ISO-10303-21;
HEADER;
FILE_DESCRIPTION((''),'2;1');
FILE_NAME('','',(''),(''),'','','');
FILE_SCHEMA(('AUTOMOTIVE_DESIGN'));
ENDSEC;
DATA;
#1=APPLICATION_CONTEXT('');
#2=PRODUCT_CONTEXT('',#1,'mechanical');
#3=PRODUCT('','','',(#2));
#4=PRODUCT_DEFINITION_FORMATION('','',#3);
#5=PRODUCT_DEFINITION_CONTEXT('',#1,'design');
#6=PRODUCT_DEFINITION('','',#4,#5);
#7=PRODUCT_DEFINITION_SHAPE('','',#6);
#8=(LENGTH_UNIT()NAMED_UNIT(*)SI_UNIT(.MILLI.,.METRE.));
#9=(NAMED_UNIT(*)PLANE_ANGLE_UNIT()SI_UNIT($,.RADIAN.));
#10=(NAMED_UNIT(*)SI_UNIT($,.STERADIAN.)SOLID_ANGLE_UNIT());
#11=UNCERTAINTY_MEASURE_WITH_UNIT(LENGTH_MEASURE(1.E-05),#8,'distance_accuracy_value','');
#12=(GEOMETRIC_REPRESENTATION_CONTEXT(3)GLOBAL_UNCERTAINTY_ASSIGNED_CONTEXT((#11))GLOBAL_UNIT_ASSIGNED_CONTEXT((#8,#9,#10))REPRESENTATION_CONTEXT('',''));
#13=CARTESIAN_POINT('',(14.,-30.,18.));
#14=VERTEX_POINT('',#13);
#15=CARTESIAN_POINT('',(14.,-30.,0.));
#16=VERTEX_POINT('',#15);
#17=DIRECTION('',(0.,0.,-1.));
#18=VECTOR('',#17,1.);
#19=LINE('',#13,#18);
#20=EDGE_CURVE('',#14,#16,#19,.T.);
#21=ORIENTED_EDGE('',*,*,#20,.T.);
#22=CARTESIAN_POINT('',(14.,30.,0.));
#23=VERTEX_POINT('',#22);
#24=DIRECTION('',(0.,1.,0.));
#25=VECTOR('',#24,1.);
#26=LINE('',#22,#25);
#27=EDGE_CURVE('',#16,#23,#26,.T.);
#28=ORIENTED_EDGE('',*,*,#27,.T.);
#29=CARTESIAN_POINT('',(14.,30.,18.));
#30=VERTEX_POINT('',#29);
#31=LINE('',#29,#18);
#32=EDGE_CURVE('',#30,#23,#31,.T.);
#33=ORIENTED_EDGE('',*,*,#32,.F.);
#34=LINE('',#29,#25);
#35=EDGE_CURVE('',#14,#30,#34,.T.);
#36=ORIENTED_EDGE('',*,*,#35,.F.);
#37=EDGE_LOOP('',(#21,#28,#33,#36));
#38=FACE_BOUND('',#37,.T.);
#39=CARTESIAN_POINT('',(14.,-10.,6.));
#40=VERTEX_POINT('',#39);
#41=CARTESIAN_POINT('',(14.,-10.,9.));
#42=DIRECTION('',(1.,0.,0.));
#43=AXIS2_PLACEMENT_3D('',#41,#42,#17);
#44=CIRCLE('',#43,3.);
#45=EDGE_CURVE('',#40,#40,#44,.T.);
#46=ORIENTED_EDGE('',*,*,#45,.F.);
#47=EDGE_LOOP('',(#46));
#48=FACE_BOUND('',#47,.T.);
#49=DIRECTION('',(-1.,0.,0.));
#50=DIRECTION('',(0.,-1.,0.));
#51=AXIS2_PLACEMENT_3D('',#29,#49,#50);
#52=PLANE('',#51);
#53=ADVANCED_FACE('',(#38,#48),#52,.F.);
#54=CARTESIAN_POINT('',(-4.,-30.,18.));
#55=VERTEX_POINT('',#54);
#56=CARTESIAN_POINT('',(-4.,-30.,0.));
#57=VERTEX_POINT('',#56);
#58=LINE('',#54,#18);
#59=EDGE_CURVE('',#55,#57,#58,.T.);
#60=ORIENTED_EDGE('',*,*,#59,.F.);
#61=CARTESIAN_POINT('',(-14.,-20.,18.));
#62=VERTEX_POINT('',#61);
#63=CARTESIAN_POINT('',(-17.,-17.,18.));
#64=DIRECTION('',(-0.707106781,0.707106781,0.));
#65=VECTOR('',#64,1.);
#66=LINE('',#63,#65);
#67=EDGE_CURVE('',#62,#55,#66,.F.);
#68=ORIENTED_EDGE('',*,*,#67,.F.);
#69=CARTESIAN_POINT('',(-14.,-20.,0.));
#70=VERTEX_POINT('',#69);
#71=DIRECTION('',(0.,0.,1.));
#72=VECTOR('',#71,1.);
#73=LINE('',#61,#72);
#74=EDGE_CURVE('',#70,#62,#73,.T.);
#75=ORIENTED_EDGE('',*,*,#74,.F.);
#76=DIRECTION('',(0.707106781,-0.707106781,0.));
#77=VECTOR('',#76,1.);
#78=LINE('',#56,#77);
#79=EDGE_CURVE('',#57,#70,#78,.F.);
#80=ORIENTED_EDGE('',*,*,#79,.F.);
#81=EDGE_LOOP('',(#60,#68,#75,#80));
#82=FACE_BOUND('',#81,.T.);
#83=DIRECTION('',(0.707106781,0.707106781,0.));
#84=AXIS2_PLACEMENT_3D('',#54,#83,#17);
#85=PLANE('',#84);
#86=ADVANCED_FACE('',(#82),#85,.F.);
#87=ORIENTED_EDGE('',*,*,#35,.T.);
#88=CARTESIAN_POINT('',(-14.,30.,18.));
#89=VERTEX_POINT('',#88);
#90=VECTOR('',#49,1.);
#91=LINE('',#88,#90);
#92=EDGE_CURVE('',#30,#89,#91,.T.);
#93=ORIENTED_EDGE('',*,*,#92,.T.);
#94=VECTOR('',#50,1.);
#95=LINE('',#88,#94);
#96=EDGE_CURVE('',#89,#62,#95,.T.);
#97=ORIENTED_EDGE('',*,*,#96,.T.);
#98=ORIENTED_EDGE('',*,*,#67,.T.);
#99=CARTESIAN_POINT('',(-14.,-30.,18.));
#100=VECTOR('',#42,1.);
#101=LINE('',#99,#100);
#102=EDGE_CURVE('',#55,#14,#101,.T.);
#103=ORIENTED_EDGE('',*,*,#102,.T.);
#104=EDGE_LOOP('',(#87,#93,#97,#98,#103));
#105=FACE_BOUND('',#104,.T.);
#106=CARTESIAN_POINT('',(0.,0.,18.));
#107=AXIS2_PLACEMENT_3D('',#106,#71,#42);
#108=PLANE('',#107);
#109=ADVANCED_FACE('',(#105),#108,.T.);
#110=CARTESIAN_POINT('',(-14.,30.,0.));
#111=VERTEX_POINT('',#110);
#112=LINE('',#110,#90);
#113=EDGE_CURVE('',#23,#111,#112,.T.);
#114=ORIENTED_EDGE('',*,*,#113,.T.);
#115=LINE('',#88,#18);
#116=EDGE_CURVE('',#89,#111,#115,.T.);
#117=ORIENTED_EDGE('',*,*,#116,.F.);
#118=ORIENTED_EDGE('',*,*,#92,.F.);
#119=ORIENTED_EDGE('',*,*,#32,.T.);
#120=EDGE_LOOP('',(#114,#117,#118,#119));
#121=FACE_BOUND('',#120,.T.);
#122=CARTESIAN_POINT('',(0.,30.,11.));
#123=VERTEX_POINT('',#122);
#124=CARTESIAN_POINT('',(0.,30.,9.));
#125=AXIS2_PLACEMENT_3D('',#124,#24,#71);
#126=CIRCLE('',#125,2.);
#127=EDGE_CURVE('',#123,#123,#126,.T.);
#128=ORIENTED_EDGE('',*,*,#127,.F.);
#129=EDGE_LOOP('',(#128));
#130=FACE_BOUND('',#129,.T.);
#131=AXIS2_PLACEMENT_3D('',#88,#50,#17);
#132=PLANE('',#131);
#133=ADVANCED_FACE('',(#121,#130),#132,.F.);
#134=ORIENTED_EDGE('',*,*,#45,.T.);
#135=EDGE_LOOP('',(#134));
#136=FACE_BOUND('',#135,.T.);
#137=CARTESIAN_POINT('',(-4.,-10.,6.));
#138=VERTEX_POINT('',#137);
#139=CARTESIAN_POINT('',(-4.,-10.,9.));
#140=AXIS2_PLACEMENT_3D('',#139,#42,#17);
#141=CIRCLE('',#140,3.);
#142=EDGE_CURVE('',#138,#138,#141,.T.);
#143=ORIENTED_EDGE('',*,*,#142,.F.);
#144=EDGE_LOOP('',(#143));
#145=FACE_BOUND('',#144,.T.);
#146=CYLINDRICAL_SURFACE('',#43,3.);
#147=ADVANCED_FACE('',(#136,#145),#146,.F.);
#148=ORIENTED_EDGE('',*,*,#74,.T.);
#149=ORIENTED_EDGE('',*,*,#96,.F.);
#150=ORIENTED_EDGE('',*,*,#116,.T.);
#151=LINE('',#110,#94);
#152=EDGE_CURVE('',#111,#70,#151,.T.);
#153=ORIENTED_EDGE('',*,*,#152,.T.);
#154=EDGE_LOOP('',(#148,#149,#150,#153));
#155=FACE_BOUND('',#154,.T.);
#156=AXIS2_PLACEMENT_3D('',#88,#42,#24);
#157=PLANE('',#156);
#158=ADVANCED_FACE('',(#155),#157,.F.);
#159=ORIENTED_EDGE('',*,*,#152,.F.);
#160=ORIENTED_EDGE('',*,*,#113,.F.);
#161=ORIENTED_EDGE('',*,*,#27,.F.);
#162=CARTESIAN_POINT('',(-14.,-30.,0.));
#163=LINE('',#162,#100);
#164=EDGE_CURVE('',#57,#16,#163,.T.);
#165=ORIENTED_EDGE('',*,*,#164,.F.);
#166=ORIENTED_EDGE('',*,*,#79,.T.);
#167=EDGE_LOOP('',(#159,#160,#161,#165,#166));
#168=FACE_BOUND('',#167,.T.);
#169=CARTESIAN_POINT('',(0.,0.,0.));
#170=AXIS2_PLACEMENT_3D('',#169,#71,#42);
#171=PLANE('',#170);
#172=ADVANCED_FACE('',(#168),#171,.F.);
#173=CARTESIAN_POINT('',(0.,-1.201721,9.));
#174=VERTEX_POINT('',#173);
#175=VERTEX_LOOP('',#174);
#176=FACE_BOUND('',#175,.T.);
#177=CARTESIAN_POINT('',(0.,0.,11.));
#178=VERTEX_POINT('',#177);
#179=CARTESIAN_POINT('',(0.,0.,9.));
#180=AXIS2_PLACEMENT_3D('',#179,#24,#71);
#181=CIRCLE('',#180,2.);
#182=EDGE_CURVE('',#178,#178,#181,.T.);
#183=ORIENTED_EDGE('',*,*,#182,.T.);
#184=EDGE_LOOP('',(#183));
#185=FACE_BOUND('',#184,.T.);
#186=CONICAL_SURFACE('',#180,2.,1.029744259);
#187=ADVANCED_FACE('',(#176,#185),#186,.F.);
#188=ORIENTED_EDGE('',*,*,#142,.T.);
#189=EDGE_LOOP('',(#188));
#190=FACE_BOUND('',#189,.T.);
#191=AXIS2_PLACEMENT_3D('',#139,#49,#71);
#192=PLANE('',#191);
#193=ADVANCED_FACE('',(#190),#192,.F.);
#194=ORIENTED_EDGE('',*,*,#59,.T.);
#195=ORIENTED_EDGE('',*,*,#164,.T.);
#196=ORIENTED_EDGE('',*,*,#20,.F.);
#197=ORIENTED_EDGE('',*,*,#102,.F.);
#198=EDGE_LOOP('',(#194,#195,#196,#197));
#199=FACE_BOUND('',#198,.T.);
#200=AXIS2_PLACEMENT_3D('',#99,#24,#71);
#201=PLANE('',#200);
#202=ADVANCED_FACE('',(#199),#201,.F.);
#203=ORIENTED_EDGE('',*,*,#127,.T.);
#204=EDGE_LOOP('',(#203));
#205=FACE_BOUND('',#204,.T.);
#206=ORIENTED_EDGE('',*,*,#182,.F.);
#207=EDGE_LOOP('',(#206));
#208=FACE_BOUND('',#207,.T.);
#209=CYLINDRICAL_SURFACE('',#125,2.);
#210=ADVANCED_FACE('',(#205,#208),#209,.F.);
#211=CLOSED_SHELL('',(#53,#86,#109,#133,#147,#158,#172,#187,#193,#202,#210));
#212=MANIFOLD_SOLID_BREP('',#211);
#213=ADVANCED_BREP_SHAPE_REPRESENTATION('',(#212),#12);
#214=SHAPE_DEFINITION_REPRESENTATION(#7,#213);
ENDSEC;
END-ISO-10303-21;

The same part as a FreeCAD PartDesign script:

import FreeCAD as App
import Part
import Sketcher
from FreeCAD import Vector
Q = App.Units.Quantity


def edges_at(feature, points):
    """Names of the edges that pass closest to the given points."""
    edges = feature.Shape.Edges
    near = lambda p: min(range(len(edges)), key=lambda i: edges[i].distToShape(Part.Vertex(*p))[0])
    return sorted({f"Edge{near(p) + 1}" for p in points})


def add_polygon(sketch, points):
    """Adds a closed chain of lines whose ends are joined by coincident constraints."""
    first, n = sketch.GeometryCount, len(points)
    for a, b in zip(points, points[1:] + points[:1]):
        sketch.addGeometry(Part.LineSegment(App.Vector(*a, 0), App.Vector(*b, 0)), False)
    for i in range(n):
        sketch.addConstraint(Sketcher.Constraint("Coincident", first + i, 2, first + (i + 1) % n, 1))

doc = App.newDocument("Part")
body = doc.addObject("PartDesign::Body", "Body")

sketch1 = body.newObject("Sketcher::SketchObject", "Sketch")
sketch1.AttachmentSupport = (doc.getObject("XY_Plane"), [""])
sketch1.MapMode = "FlatFace"
add_polygon(sketch1, [(-14, 30), (-14, -30), (14, -30), (14, 30)])
sketch1.addConstraint(Sketcher.Constraint("Vertical", 0))
sketch1.addConstraint(Sketcher.Constraint("Horizontal", 1))
sketch1.addConstraint(Sketcher.Constraint("Vertical", 2))
sketch1.addConstraint(Sketcher.Constraint("Horizontal", 3))
sketch1.addConstraint(Sketcher.Constraint("Symmetric", 0, 2, 2, 2, -1, 1))
sketch1.addConstraint(Sketcher.Constraint("DistanceX", 1, 1, 1, 2, Q("28 mm")))
sketch1.addConstraint(Sketcher.Constraint("DistanceY", 0, 2, 0, 1, Q("60 mm")))
pad1 = body.newObject("PartDesign::Pad", "Pad")
pad1.Profile = sketch1
pad1.Length = 18
doc.recompute()

chamfer = body.newObject("PartDesign::Chamfer", "Chamfer")
chamfer.Base = (pad1, edges_at(pad1, [(-14, -30, 9)]))
chamfer.Size = 10

sketch2 = body.newObject("Sketcher::SketchObject", "Sketch001")
sketch2.AttachmentSupport = (doc.getObject("XZ_Plane"), [""])
sketch2.MapMode = "FlatFace"
sketch2.AttachmentOffset = App.Placement(Vector(0, 0, -30), App.Rotation())
sketch2.addGeometry(Part.Circle(Vector(0, 9, 0), Vector(0, 0, 1), 2), False)
sketch2.addConstraint(Sketcher.Constraint("PointOnObject", 0, 3, -2))
sketch2.addConstraint(Sketcher.Constraint("Diameter", 0, Q("4 mm")))
sketch2.addConstraint(Sketcher.Constraint("DistanceY", -1, 1, 0, 3, Q("9 mm")))
doc.recompute()
hole = body.newObject("PartDesign::Hole", "Hole")
hole.Profile = sketch2
hole.ThreadType = "None"
hole.Diameter = 4
hole.DepthType = "Dimension"
hole.Depth = 30
hole.DrillPoint = "Angled"
hole.DrillPointAngle = 118
hole.Reversed = True

sketch3 = body.newObject("Sketcher::SketchObject", "Sketch002")
sketch3.AttachmentSupport = (doc.getObject("YZ_Plane"), [""])
sketch3.MapMode = "FlatFace"
sketch3.AttachmentOffset = App.Placement(Vector(0, 0, 14), App.Rotation())
sketch3.addGeometry(Part.Circle(Vector(-10, 9, 0), Vector(0, 0, 1), 3), False)
sketch3.addConstraint(Sketcher.Constraint("Diameter", 0, Q("6 mm")))
sketch3.addConstraint(Sketcher.Constraint("DistanceX", 0, 3, -1, 1, Q("10 mm")))
sketch3.addConstraint(Sketcher.Constraint("DistanceY", -1, 1, 0, 3, Q("9 mm")))
doc.recompute()
hole2 = body.newObject("PartDesign::Hole", "Hole001")
hole2.Profile = sketch3
hole2.ThreadType = "None"
hole2.Diameter = 6
hole2.DepthType = "Dimension"
hole2.Depth = 18
hole2.DrillPoint = "Flat"

doc.recompute()
